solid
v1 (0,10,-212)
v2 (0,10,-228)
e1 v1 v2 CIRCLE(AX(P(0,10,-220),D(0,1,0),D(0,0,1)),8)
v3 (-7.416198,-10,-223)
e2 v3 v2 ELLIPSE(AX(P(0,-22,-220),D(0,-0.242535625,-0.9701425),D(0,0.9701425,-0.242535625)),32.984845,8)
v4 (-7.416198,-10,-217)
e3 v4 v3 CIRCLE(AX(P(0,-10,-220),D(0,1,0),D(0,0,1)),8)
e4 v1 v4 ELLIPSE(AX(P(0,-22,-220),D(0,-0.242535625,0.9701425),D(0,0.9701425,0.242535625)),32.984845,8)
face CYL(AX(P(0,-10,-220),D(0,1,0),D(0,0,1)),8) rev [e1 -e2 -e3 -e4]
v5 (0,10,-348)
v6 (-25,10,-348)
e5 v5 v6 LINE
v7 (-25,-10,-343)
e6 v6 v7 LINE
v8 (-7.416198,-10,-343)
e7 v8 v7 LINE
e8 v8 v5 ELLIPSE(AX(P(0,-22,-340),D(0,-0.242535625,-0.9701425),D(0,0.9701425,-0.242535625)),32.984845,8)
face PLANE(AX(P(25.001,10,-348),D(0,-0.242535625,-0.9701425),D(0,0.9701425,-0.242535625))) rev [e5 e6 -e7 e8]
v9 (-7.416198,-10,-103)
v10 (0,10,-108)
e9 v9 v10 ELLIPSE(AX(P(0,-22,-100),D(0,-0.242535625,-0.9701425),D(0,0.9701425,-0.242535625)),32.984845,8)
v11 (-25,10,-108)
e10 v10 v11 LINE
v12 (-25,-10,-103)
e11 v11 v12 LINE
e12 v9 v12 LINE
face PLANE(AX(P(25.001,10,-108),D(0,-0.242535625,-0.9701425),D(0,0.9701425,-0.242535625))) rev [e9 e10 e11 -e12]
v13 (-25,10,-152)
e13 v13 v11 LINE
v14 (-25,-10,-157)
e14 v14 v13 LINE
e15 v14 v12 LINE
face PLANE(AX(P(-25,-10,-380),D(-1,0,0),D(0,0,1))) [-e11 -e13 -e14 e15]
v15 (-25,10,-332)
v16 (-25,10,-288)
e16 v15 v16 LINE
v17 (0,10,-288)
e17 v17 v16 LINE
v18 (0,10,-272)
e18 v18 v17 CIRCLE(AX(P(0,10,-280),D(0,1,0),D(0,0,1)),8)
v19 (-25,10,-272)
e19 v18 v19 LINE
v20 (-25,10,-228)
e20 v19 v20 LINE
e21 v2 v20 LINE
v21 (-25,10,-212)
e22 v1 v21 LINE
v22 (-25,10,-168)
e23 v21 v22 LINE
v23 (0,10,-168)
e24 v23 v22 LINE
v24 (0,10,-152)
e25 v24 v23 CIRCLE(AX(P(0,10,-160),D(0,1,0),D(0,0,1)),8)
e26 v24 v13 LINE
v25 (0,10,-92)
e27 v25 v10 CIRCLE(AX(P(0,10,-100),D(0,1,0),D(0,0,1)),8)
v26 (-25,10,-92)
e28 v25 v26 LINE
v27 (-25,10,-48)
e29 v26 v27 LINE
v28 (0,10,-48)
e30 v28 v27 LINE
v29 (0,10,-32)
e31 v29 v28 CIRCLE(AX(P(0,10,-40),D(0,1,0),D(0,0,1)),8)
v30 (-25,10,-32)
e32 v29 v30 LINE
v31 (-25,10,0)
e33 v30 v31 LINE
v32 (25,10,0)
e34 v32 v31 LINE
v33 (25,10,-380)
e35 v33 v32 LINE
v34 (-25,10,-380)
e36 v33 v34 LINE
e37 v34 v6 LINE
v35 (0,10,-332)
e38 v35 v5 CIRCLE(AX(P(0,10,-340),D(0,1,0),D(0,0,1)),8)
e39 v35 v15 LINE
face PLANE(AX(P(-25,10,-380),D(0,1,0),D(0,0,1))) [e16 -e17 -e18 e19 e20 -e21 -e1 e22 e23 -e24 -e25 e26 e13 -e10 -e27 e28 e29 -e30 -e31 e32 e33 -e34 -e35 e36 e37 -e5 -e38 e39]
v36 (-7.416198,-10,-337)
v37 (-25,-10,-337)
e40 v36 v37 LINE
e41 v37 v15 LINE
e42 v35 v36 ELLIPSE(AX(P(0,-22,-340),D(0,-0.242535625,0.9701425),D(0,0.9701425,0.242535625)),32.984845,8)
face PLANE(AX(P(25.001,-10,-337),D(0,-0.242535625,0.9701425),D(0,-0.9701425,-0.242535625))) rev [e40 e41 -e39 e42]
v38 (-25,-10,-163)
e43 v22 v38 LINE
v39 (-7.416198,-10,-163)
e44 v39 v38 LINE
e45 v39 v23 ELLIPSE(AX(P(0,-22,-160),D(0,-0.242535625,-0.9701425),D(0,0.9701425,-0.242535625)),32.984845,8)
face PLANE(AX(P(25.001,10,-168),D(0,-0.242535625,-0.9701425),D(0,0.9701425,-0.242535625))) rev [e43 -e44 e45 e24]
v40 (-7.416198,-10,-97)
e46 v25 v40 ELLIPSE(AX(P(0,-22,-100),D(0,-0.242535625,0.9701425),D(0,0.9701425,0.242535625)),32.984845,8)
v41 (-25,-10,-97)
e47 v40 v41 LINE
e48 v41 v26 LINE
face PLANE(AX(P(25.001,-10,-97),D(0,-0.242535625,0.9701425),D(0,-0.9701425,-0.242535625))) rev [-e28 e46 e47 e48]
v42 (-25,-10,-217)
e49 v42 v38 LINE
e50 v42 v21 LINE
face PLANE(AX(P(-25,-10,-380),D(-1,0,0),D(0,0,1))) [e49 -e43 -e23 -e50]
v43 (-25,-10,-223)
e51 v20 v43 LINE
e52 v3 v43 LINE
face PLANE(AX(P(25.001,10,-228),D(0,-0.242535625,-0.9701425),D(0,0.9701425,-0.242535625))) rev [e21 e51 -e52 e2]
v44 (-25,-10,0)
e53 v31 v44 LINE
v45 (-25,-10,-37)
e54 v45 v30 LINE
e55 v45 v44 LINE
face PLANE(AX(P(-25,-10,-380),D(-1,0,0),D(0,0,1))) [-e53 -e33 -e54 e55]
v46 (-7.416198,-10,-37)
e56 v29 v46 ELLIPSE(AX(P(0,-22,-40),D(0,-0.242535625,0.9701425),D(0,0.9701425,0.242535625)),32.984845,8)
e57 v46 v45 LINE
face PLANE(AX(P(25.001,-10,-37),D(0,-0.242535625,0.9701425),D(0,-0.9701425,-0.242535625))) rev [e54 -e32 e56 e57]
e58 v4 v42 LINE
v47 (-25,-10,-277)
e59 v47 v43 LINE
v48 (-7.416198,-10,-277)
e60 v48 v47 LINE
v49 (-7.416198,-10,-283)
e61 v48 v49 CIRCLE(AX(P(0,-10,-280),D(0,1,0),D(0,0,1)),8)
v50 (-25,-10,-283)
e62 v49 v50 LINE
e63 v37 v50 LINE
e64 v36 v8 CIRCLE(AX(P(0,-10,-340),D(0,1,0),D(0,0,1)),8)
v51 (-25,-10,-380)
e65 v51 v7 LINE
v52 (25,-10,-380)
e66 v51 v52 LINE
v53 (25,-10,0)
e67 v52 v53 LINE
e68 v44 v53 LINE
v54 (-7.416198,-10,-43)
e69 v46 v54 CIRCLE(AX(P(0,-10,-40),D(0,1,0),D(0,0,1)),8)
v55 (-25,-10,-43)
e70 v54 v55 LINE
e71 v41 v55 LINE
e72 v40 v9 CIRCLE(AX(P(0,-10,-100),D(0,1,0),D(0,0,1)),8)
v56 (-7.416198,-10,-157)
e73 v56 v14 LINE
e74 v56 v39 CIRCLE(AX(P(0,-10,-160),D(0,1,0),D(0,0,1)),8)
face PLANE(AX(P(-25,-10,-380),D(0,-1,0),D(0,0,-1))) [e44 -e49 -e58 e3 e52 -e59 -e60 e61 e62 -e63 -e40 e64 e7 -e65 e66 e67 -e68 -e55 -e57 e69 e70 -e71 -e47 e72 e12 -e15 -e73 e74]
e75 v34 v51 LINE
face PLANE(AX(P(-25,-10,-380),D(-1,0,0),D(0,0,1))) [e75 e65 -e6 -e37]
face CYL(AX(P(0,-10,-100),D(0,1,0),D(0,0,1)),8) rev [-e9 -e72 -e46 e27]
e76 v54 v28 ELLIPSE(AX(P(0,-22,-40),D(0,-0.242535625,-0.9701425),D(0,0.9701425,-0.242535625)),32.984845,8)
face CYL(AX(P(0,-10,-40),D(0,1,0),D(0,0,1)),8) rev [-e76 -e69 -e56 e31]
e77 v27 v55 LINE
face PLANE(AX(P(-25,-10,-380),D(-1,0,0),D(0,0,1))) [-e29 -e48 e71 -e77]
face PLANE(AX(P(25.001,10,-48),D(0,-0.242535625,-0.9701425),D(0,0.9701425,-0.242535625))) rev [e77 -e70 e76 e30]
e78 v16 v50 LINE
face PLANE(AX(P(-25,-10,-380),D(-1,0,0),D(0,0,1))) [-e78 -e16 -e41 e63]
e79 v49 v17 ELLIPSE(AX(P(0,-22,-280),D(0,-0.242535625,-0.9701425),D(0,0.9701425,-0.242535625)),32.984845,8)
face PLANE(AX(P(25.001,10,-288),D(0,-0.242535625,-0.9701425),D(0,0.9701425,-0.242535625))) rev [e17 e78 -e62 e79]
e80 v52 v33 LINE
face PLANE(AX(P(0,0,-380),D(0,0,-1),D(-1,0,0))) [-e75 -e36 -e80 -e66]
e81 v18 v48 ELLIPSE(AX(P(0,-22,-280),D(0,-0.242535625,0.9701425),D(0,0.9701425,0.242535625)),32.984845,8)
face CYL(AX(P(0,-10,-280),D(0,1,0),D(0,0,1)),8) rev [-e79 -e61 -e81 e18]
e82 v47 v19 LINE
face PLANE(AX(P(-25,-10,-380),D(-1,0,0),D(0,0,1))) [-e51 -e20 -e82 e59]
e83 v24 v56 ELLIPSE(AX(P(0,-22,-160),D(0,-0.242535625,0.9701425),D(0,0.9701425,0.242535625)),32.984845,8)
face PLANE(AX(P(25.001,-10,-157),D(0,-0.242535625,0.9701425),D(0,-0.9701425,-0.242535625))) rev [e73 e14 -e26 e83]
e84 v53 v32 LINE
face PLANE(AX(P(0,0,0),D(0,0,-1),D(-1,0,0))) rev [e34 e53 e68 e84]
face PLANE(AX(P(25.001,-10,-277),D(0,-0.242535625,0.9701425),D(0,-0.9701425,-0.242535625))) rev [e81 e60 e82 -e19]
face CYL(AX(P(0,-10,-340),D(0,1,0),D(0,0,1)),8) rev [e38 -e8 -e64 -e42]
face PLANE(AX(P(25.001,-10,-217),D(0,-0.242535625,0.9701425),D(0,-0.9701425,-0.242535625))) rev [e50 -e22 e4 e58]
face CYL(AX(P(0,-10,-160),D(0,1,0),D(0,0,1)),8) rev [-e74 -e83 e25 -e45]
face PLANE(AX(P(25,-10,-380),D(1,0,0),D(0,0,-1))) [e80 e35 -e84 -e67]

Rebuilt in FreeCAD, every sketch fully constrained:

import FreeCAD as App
import Part
import Sketcher
Q = App.Units.Quantity


def add_polygon(sketch, points):
    """Adds a closed chain of lines whose ends are joined by coincident constraints."""
    first, n = sketch.GeometryCount, len(points)
    for a, b in zip(points, points[1:] + points[:1]):
        sketch.addGeometry(Part.LineSegment(App.Vector(*a, 0), App.Vector(*b, 0)), False)
    for i in range(n):
        sketch.addConstraint(Sketcher.Constraint("Coincident", first + i, 2, first + (i + 1) % n, 1))

doc = App.newDocument("Part")
body = doc.addObject("PartDesign::Body", "Body")

sketch1 = body.newObject("Sketcher::SketchObject", "Sketch")
sketch1.AttachmentSupport = (doc.getObject("XY_Plane"), [""])
sketch1.MapMode = "FlatFace"
add_polygon(sketch1, [(-25, 10), (-25, -10), (25, -10), (25, 10)])
sketch1.addConstraint(Sketcher.Constraint("Vertical", 0))
sketch1.addConstraint(Sketcher.Constraint("Horizontal", 1))
sketch1.addConstraint(Sketcher.Constraint("Vertical", 2))
sketch1.addConstraint(Sketcher.Constraint("Horizontal", 3))
sketch1.addConstraint(Sketcher.Constraint("Symmetric", 0, 2, 2, 2, -1, 1))
sketch1.addConstraint(Sketcher.Constraint("DistanceX", 1, 1, 1, 2, Q("50 mm")))
sketch1.addConstraint(Sketcher.Constraint("DistanceY", 0, 2, 0, 1, Q("20 mm")))
pad1 = body.newObject("PartDesign::Pad", "Pad")
pad1.Profile = sketch1
pad1.Length = 380
pad1.Reversed = True

sketch2 = body.newObject("Sketcher::SketchObject", "Sketch001")
sketch2.AttachmentSupport = (doc.getObject("XZ_Plane"), [""])
sketch2.MapMode = "FlatFace"
sketch2.AttachmentOffset = App.Placement(App.Vector(0, 0, -10), App.Rotation())
sketch2.addGeometry(Part.Circle(App.Vector(0, -40, 0), App.Vector(0, 0, 1), 8), False)
sketch2.addGeometry(Part.Circle(App.Vector(0, -100, 0), App.Vector(0, 0, 1), 8), False)
sketch2.addGeometry(Part.Circle(App.Vector(0, -160, 0), App.Vector(0, 0, 1), 8), False)
sketch2.addGeometry(Part.Circle(App.Vector(0, -220, 0), App.Vector(0, 0, 1), 8), False)
sketch2.addGeometry(Part.Circle(App.Vector(0, -280, 0), App.Vector(0, 0, 1), 8), False)
sketch2.addGeometry(Part.Circle(App.Vector(0, -340, 0), App.Vector(0, 0, 1), 8), False)
sketch2.addConstraint(Sketcher.Constraint("Equal", 0, 1))
sketch2.addConstraint(Sketcher.Constraint("Equal", 1, 2))
sketch2.addConstraint(Sketcher.Constraint("Equal", 2, 3))
sketch2.addConstraint(Sketcher.Constraint("Equal", 3, 4))
sketch2.addConstraint(Sketcher.Constraint("Equal", 4, 5))
sketch2.addConstraint(Sketcher.Constraint("PointOnObject", 0, 3, -2))
sketch2.addConstraint(Sketcher.Constraint("PointOnObject", 1, 3, -2))
sketch2.addConstraint(Sketcher.Constraint("PointOnObject", 2, 3, -2))
sketch2.addConstraint(Sketcher.Constraint("PointOnObject", 3, 3, -2))
sketch2.addConstraint(Sketcher.Constraint("PointOnObject", 4, 3, -2))
sketch2.addConstraint(Sketcher.Constraint("PointOnObject", 5, 3, -2))
sketch2.addConstraint(Sketcher.Constraint("Diameter", 0, Q("16 mm")))
sketch2.addConstraint(Sketcher.Constraint("DistanceY", 0, 3, -1, 1, Q("40 mm")))
sketch2.addConstraint(Sketcher.Constraint("DistanceY", 1, 3, -1, 1, Q("100 mm")))
sketch2.addConstraint(Sketcher.Constraint("DistanceY", 2, 3, -1, 1, Q("160 mm")))
sketch2.addConstraint(Sketcher.Constraint("DistanceY", 3, 3, -1, 1, Q("220 mm")))
sketch2.addConstraint(Sketcher.Constraint("DistanceY", 4, 3, -1, 1, Q("280 mm")))
sketch2.addConstraint(Sketcher.Constraint("DistanceY", 5, 3, -1, 1, Q("340 mm")))
pocket1 = body.newObject("PartDesign::Pocket", "Pocket")
pocket1.Profile = sketch2
pocket1.Type = "ThroughAll"
pocket1.Reversed = True

sketch3 = body.newObject("Sketcher::SketchObject", "Sketch002")
sketch3.AttachmentSupport = (doc.getObject("YZ_Plane"), [""])
sketch3.MapMode = "FlatFace"
sketch3.AttachmentOffset = App.Placement(App.Vector(0, 0, -25), App.Rotation())
add_polygon(sketch3, [(10, -348), (-10, -343), (-10, -337), (10, -332)])
sketch3.addConstraint(Sketcher.Constraint("Vertical", 1))
sketch3.addConstraint(Sketcher.Constraint("Vertical", 3))
sketch3.addConstraint(Sketcher.Constraint("Equal", 0, 2))
sketch3.addConstraint(Sketcher.Constraint("DistanceY", 1, 1, 1, 2, Q("6 mm")))
sketch3.addConstraint(Sketcher.Constraint("DistanceY", 3, 2, 3, 1, Q("16 mm")))
sketch3.addConstraint(Sketcher.Constraint("DistanceX", 0, 2, -1, 1, Q("10 mm")))
sketch3.addConstraint(Sketcher.Constraint("DistanceY", 0, 2, -1, 1, Q("343 mm")))
sketch3.addConstraint(Sketcher.Constraint("DistanceX", -1, 1, 2, 2, Q("10 mm")))
pocket2 = body.newObject("PartDesign::Pocket", "Pocket001")
pocket2.Profile = sketch3
pocket2.Type = "UpToFirst"
pocket2.Reversed = True

sketch4 = body.newObject("Sketcher::SketchObject", "Sketch003")
sketch4.AttachmentSupport = (doc.getObject("YZ_Plane"), [""])
sketch4.MapMode = "FlatFace"
sketch4.AttachmentOffset = App.Placement(App.Vector(0, 0, -25), App.Rotation())
add_polygon(sketch4, [(10, -288), (-10, -283), (-10, -277), (10, -272)])
sketch4.addConstraint(Sketcher.Constraint("Vertical", 1))
sketch4.addConstraint(Sketcher.Constraint("Vertical", 3))
sketch4.addConstraint(Sketcher.Constraint("Equal", 0, 2))
sketch4.addConstraint(Sketcher.Constraint("DistanceY", 1, 1, 1, 2, Q("6 mm")))
sketch4.addConstraint(Sketcher.Constraint("DistanceY", 3, 2, 3, 1, Q("16 mm")))
sketch4.addConstraint(Sketcher.Constraint("DistanceX", 0, 2, -1, 1, Q("10 mm")))
sketch4.addConstraint(Sketcher.Constraint("DistanceY", 0, 2, -1, 1, Q("283 mm")))
sketch4.addConstraint(Sketcher.Constraint("DistanceX", -1, 1, 2, 2, Q("10 mm")))
pocket3 = body.newObject("PartDesign::Pocket", "Pocket002")
pocket3.Profile = sketch4
pocket3.Type = "UpToFirst"
pocket3.Reversed = True

sketch5 = body.newObject("Sketcher::SketchObject", "Sketch004")
sketch5.AttachmentSupport = (doc.getObject("YZ_Plane"), [""])
sketch5.MapMode = "FlatFace"
sketch5.AttachmentOffset = App.Placement(App.Vector(0, 0, -25), App.Rotation())
add_polygon(sketch5, [(10, -228), (-10, -223), (-10, -217), (10, -212)])
sketch5.addConstraint(Sketcher.Constraint("Vertical", 1))
sketch5.addConstraint(Sketcher.Constraint("Vertical", 3))
sketch5.addConstraint(Sketcher.Constraint("Equal", 0, 2))
sketch5.addConstraint(Sketcher.Constraint("DistanceY", 1, 1, 1, 2, Q("6 mm")))
sketch5.addConstraint(Sketcher.Constraint("DistanceY", 3, 2, 3, 1, Q("16 mm")))
sketch5.addConstraint(Sketcher.Constraint("DistanceX", 0, 2, -1, 1, Q("10 mm")))
sketch5.addConstraint(Sketcher.Constraint("DistanceY", 0, 2, -1, 1, Q("223 mm")))
sketch5.addConstraint(Sketcher.Constraint("DistanceX", -1, 1, 2, 2, Q("10 mm")))
pocket4 = body.newObject("PartDesign::Pocket", "Pocket003")
pocket4.Profile = sketch5
pocket4.Type = "UpToFirst"
pocket4.Reversed = True

sketch6 = body.newObject("Sketcher::SketchObject", "Sketch005")
sketch6.AttachmentSupport = (doc.getObject("YZ_Plane"), [""])
sketch6.MapMode = "FlatFace"
sketch6.AttachmentOffset = App.Placement(App.Vector(0, 0, -25), App.Rotation())
add_polygon(sketch6, [(10, -168), (-10, -163), (-10, -157), (10, -152)])
sketch6.addConstraint(Sketcher.Constraint("Vertical", 1))
sketch6.addConstraint(Sketcher.Constraint("Vertical", 3))
sketch6.addConstraint(Sketcher.Constraint("Equal", 0, 2))
sketch6.addConstraint(Sketcher.Constraint("DistanceY", 1, 1, 1, 2, Q("6 mm")))
sketch6.addConstraint(Sketcher.Constraint("DistanceY", 3, 2, 3, 1, Q("16 mm")))
sketch6.addConstraint(Sketcher.Constraint("DistanceX", 0, 2, -1, 1, Q("10 mm")))
sketch6.addConstraint(Sketcher.Constraint("DistanceY", 0, 2, -1, 1, Q("163 mm")))
sketch6.addConstraint(Sketcher.Constraint("DistanceX", -1, 1, 2, 2, Q("10 mm")))
pocket5 = body.newObject("PartDesign::Pocket", "Pocket004")
pocket5.Profile = sketch6
pocket5.Type = "UpToFirst"
pocket5.Reversed = True

sketch7 = body.newObject("Sketcher::SketchObject", "Sketch006")
sketch7.AttachmentSupport = (doc.getObject("YZ_Plane"), [""])
sketch7.MapMode = "FlatFace"
sketch7.AttachmentOffset = App.Placement(App.Vector(0, 0, -25), App.Rotation())
add_polygon(sketch7, [(10, -108), (-10, -103), (-10, -97), (10, -92)])
sketch7.addConstraint(Sketcher.Constraint("Vertical", 1))
sketch7.addConstraint(Sketcher.Constraint("Vertical", 3))
sketch7.addConstraint(Sketcher.Constraint("Equal", 0, 2))
sketch7.addConstraint(Sketcher.Constraint("DistanceY", 1, 1, 1, 2, Q("6 mm")))
sketch7.addConstraint(Sketcher.Constraint("DistanceY", 3, 2, 3, 1, Q("16 mm")))
sketch7.addConstraint(Sketcher.Constraint("DistanceX", 0, 2, -1, 1, Q("10 mm")))
sketch7.addConstraint(Sketcher.Constraint("DistanceY", 0, 2, -1, 1, Q("103 mm")))
sketch7.addConstraint(Sketcher.Constraint("DistanceX", -1, 1, 2, 2, Q("10 mm")))
pocket6 = body.newObject("PartDesign::Pocket", "Pocket005")
pocket6.Profile = sketch7
pocket6.Type = "UpToFirst"
pocket6.Reversed = True

sketch8 = body.newObject("Sketcher::SketchObject", "Sketch007")
sketch8.AttachmentSupport = (doc.getObject("YZ_Plane"), [""])
sketch8.MapMode = "FlatFace"
sketch8.AttachmentOffset = App.Placement(App.Vector(0, 0, -25), App.Rotation())
add_polygon(sketch8, [(10, -48), (-10, -43), (-10, -37), (10, -32)])
sketch8.addConstraint(Sketcher.Constraint("Vertical", 1))
sketch8.addConstraint(Sketcher.Constraint("Vertical", 3))
sketch8.addConstraint(Sketcher.Constraint("Equal", 0, 2))
sketch8.addConstraint(Sketcher.Constraint("DistanceY", 1, 1, 1, 2, Q("6 mm")))
sketch8.addConstraint(Sketcher.Constraint("DistanceY", 3, 2, 3, 1, Q("16 mm")))
sketch8.addConstraint(Sketcher.Constraint("DistanceX", 0, 2, -1, 1, Q("10 mm")))
sketch8.addConstraint(Sketcher.Constraint("DistanceY", 0, 2, -1, 1, Q("43 mm")))
sketch8.addConstraint(Sketcher.Constraint("DistanceX", -1, 1, 2, 2, Q("10 mm")))
pocket7 = body.newObject("PartDesign::Pocket", "Pocket006")
pocket7.Profile = sketch8
pocket7.Type = "UpToFirst"
pocket7.Reversed = True

doc.recompute()
